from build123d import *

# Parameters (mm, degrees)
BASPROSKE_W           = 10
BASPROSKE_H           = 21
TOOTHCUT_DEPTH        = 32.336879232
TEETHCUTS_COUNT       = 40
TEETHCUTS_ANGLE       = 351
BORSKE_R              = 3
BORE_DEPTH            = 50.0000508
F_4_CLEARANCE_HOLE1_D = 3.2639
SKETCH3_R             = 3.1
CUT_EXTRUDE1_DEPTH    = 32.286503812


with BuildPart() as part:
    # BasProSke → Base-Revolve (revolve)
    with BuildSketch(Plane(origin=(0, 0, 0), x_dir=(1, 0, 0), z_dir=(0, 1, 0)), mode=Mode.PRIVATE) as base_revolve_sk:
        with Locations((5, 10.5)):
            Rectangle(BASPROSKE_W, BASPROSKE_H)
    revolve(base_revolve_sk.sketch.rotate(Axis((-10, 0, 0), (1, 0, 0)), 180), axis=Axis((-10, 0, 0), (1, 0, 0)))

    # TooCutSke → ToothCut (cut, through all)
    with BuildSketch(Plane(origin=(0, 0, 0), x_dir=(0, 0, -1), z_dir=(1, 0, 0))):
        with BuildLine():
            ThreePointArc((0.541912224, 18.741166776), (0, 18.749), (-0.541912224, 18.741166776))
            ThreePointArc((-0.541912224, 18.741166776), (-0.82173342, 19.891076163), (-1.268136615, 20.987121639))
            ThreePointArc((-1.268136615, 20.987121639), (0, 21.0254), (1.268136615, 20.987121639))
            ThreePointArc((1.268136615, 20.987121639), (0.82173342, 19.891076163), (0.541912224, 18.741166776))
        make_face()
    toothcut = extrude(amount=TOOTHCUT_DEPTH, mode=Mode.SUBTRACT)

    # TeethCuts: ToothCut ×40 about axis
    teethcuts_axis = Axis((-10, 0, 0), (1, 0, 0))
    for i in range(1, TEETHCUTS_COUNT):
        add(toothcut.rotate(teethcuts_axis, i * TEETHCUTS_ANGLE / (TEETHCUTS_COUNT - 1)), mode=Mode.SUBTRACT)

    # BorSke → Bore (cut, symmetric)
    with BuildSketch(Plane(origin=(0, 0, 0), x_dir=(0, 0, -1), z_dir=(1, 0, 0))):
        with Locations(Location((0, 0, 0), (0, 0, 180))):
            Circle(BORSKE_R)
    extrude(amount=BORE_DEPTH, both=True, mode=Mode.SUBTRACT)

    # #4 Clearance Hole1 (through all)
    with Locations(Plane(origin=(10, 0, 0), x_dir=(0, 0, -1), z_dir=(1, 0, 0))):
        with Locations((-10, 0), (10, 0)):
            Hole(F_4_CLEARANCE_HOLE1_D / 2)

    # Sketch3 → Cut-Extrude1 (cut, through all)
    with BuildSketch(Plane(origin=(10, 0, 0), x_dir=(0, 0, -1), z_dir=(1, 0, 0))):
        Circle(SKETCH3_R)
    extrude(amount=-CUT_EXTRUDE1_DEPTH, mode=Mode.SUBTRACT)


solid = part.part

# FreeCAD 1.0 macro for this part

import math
import FreeCAD as App
import Part
import Sketcher


def add_polygon(sketch, points):
    """Adds a closed chain of lines whose ends are joined by coincident constraints."""
    first, n = sketch.GeometryCount, len(points)
    for a, b in zip(points, points[1:] + points[:1]):
        sketch.addGeometry(Part.LineSegment(App.Vector(*a, 0), App.Vector(*b, 0)), False)
    for i in range(n):
        sketch.addConstraint(Sketcher.Constraint("Coincident", first + i, 2, first + (i + 1) % n, 1))

doc = App.newDocument("Part")
body = doc.addObject("PartDesign::Body", "Body")

# Sketch on XZ plane
sketch1 = body.newObject("Sketcher::SketchObject", "Sketch")
sketch1.AttachmentSupport = (doc.getObject("XZ_Plane"), [""])
sketch1.MapMode = "FlatFace"
add_polygon(sketch1, [(0, -21), (0, 0), (10, 0), (10, -21)])  # lines 0-3
sketch1.addConstraint(Sketcher.Constraint("Vertical", 0))
sketch1.addConstraint(Sketcher.Constraint("Horizontal", 1))
sketch1.addConstraint(Sketcher.Constraint("Vertical", 2))
sketch1.addConstraint(Sketcher.Constraint("Horizontal", 3))
sketch1.addConstraint(Sketcher.Constraint("Coincident", 0, 2, -1, 1))
sketch1.addConstraint(Sketcher.Constraint("DistanceX", 1, 1, 1, 2, 10.0))
sketch1.addConstraint(Sketcher.Constraint("DistanceY", 0, 1, 0, 2, 21.0))
revolution = body.newObject("PartDesign::Revolution", "Revolution")
revolution.Profile = sketch1
revolution.ReferenceAxis = (sketch1, ["H_Axis"])
revolution.Angle = 360

# Sketch on YZ plane
sketch2 = body.newObject("Sketcher::SketchObject", "Sketch001")
sketch2.AttachmentSupport = (doc.getObject("YZ_Plane"), [""])
sketch2.MapMode = "FlatFace"
sketch2.addGeometry(Part.ArcOfCircle(Part.Circle(App.Vector(0, 0, 0), App.Vector(0, 0, 1), 18.7), math.radians(-1.66), math.radians(1.66)), False)
sketch2.addGeometry(Part.ArcOfCircle(Part.Circle(App.Vector(17.4, -8.4, 0), App.Vector(0, 0, 1), 8), math.radians(63.6), math.radians(80.57)), False)
sketch2.addGeometry(Part.ArcOfCircle(Part.Circle(App.Vector(0, 0, 0), App.Vector(0, 0, 1), 21), math.radians(-3.46), math.radians(3.46)), False)
sketch2.addGeometry(Part.ArcOfCircle(Part.Circle(App.Vector(17.4, 8.4, 0), App.Vector(0, 0, 1), 8), math.radians(-80.57), math.radians(-63.6)), False)
sketch2.addConstraint(Sketcher.Constraint("Coincident", 0, 1, 1, 2))
sketch2.addConstraint(Sketcher.Constraint("Coincident", 1, 1, 2, 1))
sketch2.addConstraint(Sketcher.Constraint("Coincident", 2, 2, 3, 2))
sketch2.addConstraint(Sketcher.Constraint("Coincident", 3, 1, 0, 2))
sketch2.addConstraint(Sketcher.Constraint("Coincident", 0, 3, -1, 1))
sketch2.addConstraint(Sketcher.Constraint("Coincident", 2, 3, -1, 1))
sketch2.addConstraint(Sketcher.Constraint("Equal", 1, 3))
sketch2.addConstraint(Sketcher.Constraint("Symmetric", 1, 3, 3, 3, -1))
sketch2.addConstraint(Sketcher.Constraint("Radius", 1, 8.0))
sketch2.addConstraint(Sketcher.Constraint("Radius", 0, 18.748999))
sketch2.addConstraint(Sketcher.Constraint("Radius", 2, 21.0254))
sketch2.addConstraint(Sketcher.Constraint("DistanceX", 1, 3, 0, 1, 1.311401))
sketch2.addConstraint(Sketcher.Constraint("DistanceX", -1, 1, 1, 1, 20.987122))
pocket1 = body.newObject("PartDesign::Pocket", "Pocket")
pocket1.Profile = sketch2
pocket1.Type = "ThroughAll"
pocket1.Reversed = True
doc.recompute()

polarpattern = body.newObject("PartDesign::PolarPattern", "PolarPattern")
polarpattern.Originals = [pocket1]
polarpattern.Axis = (doc.getObject("X_Axis"), [""])
polarpattern.Angle = 360
polarpattern.Occurrences = 40
body.Tip = polarpattern

# Sketch on YZ plane
sketch3 = body.newObject("Sketcher::SketchObject", "Sketch002")
sketch3.AttachmentSupport = (doc.getObject("YZ_Plane"), [""])
sketch3.MapMode = "FlatFace"
sketch3.addGeometry(Part.Circle(App.Vector(0, 0, 0), App.Vector(0, 0, 1), 3), False)
sketch3.addConstraint(Sketcher.Constraint("Coincident", 0, 3, -1, 1))
sketch3.addConstraint(Sketcher.Constraint("Diameter", 0, 6.0))
pocket2 = body.newObject("PartDesign::Pocket", "Pocket001")
pocket2.Profile = sketch3
pocket2.Length = 100.000102
pocket2.Midplane = True

# Sketch on YZ plane
sketch4 = body.newObject("Sketcher::SketchObject", "Sketch003")
sketch4.AttachmentSupport = (doc.getObject("YZ_Plane"), [""])
sketch4.MapMode = "FlatFace"
sketch4.AttachmentOffset = App.Placement(App.Vector(0, 0, 10), App.Rotation())
sketch4.addGeometry(Part.Circle(App.Vector(0, 10, 0), App.Vector(0, 0, 1), 1.6), False)
sketch4.addGeometry(Part.Circle(App.Vector(0, -10, 0), App.Vector(0, 0, 1), 1.6), False)
sketch4.addConstraint(Sketcher.Constraint("Equal", 0, 1))
sketch4.addConstraint(Sketcher.Constraint("Symmetric", 0, 3, 1, 3, -1, 1))
sketch4.addConstraint(Sketcher.Constraint("PointOnObject", 0, 3, -2))
sketch4.addConstraint(Sketcher.Constraint("DistanceY", -1, 1, 0, 3, 10.0))
sketch4.addConstraint(Sketcher.Constraint("Diameter", 0, 3.2639))
doc.recompute()
hole = body.newObject("PartDesign::Hole", "Hole")
hole.Profile = sketch4
hole.ThreadType = "None"
hole.Diameter = 3.2639
hole.DepthType = "ThroughAll"

# Sketch on YZ plane
sketch5 = body.newObject("Sketcher::SketchObject", "Sketch004")
sketch5.AttachmentSupport = (doc.getObject("YZ_Plane"), [""])
sketch5.MapMode = "FlatFace"
sketch5.AttachmentOffset = App.Placement(App.Vector(0, 0, 10), App.Rotation())
sketch5.addGeometry(Part.Circle(App.Vector(0, 0, 0), App.Vector(0, 0, 1), 3.1), False)
sketch5.addConstraint(Sketcher.Constraint("Coincident", 0, 3, -1, 1))
sketch5.addConstraint(Sketcher.Constraint("Diameter", 0, 6.2))
pocket3 = body.newObject("PartDesign::Pocket", "Pocket002")
pocket3.Profile = sketch5
pocket3.Type = "ThroughAll"

doc.recompute()
